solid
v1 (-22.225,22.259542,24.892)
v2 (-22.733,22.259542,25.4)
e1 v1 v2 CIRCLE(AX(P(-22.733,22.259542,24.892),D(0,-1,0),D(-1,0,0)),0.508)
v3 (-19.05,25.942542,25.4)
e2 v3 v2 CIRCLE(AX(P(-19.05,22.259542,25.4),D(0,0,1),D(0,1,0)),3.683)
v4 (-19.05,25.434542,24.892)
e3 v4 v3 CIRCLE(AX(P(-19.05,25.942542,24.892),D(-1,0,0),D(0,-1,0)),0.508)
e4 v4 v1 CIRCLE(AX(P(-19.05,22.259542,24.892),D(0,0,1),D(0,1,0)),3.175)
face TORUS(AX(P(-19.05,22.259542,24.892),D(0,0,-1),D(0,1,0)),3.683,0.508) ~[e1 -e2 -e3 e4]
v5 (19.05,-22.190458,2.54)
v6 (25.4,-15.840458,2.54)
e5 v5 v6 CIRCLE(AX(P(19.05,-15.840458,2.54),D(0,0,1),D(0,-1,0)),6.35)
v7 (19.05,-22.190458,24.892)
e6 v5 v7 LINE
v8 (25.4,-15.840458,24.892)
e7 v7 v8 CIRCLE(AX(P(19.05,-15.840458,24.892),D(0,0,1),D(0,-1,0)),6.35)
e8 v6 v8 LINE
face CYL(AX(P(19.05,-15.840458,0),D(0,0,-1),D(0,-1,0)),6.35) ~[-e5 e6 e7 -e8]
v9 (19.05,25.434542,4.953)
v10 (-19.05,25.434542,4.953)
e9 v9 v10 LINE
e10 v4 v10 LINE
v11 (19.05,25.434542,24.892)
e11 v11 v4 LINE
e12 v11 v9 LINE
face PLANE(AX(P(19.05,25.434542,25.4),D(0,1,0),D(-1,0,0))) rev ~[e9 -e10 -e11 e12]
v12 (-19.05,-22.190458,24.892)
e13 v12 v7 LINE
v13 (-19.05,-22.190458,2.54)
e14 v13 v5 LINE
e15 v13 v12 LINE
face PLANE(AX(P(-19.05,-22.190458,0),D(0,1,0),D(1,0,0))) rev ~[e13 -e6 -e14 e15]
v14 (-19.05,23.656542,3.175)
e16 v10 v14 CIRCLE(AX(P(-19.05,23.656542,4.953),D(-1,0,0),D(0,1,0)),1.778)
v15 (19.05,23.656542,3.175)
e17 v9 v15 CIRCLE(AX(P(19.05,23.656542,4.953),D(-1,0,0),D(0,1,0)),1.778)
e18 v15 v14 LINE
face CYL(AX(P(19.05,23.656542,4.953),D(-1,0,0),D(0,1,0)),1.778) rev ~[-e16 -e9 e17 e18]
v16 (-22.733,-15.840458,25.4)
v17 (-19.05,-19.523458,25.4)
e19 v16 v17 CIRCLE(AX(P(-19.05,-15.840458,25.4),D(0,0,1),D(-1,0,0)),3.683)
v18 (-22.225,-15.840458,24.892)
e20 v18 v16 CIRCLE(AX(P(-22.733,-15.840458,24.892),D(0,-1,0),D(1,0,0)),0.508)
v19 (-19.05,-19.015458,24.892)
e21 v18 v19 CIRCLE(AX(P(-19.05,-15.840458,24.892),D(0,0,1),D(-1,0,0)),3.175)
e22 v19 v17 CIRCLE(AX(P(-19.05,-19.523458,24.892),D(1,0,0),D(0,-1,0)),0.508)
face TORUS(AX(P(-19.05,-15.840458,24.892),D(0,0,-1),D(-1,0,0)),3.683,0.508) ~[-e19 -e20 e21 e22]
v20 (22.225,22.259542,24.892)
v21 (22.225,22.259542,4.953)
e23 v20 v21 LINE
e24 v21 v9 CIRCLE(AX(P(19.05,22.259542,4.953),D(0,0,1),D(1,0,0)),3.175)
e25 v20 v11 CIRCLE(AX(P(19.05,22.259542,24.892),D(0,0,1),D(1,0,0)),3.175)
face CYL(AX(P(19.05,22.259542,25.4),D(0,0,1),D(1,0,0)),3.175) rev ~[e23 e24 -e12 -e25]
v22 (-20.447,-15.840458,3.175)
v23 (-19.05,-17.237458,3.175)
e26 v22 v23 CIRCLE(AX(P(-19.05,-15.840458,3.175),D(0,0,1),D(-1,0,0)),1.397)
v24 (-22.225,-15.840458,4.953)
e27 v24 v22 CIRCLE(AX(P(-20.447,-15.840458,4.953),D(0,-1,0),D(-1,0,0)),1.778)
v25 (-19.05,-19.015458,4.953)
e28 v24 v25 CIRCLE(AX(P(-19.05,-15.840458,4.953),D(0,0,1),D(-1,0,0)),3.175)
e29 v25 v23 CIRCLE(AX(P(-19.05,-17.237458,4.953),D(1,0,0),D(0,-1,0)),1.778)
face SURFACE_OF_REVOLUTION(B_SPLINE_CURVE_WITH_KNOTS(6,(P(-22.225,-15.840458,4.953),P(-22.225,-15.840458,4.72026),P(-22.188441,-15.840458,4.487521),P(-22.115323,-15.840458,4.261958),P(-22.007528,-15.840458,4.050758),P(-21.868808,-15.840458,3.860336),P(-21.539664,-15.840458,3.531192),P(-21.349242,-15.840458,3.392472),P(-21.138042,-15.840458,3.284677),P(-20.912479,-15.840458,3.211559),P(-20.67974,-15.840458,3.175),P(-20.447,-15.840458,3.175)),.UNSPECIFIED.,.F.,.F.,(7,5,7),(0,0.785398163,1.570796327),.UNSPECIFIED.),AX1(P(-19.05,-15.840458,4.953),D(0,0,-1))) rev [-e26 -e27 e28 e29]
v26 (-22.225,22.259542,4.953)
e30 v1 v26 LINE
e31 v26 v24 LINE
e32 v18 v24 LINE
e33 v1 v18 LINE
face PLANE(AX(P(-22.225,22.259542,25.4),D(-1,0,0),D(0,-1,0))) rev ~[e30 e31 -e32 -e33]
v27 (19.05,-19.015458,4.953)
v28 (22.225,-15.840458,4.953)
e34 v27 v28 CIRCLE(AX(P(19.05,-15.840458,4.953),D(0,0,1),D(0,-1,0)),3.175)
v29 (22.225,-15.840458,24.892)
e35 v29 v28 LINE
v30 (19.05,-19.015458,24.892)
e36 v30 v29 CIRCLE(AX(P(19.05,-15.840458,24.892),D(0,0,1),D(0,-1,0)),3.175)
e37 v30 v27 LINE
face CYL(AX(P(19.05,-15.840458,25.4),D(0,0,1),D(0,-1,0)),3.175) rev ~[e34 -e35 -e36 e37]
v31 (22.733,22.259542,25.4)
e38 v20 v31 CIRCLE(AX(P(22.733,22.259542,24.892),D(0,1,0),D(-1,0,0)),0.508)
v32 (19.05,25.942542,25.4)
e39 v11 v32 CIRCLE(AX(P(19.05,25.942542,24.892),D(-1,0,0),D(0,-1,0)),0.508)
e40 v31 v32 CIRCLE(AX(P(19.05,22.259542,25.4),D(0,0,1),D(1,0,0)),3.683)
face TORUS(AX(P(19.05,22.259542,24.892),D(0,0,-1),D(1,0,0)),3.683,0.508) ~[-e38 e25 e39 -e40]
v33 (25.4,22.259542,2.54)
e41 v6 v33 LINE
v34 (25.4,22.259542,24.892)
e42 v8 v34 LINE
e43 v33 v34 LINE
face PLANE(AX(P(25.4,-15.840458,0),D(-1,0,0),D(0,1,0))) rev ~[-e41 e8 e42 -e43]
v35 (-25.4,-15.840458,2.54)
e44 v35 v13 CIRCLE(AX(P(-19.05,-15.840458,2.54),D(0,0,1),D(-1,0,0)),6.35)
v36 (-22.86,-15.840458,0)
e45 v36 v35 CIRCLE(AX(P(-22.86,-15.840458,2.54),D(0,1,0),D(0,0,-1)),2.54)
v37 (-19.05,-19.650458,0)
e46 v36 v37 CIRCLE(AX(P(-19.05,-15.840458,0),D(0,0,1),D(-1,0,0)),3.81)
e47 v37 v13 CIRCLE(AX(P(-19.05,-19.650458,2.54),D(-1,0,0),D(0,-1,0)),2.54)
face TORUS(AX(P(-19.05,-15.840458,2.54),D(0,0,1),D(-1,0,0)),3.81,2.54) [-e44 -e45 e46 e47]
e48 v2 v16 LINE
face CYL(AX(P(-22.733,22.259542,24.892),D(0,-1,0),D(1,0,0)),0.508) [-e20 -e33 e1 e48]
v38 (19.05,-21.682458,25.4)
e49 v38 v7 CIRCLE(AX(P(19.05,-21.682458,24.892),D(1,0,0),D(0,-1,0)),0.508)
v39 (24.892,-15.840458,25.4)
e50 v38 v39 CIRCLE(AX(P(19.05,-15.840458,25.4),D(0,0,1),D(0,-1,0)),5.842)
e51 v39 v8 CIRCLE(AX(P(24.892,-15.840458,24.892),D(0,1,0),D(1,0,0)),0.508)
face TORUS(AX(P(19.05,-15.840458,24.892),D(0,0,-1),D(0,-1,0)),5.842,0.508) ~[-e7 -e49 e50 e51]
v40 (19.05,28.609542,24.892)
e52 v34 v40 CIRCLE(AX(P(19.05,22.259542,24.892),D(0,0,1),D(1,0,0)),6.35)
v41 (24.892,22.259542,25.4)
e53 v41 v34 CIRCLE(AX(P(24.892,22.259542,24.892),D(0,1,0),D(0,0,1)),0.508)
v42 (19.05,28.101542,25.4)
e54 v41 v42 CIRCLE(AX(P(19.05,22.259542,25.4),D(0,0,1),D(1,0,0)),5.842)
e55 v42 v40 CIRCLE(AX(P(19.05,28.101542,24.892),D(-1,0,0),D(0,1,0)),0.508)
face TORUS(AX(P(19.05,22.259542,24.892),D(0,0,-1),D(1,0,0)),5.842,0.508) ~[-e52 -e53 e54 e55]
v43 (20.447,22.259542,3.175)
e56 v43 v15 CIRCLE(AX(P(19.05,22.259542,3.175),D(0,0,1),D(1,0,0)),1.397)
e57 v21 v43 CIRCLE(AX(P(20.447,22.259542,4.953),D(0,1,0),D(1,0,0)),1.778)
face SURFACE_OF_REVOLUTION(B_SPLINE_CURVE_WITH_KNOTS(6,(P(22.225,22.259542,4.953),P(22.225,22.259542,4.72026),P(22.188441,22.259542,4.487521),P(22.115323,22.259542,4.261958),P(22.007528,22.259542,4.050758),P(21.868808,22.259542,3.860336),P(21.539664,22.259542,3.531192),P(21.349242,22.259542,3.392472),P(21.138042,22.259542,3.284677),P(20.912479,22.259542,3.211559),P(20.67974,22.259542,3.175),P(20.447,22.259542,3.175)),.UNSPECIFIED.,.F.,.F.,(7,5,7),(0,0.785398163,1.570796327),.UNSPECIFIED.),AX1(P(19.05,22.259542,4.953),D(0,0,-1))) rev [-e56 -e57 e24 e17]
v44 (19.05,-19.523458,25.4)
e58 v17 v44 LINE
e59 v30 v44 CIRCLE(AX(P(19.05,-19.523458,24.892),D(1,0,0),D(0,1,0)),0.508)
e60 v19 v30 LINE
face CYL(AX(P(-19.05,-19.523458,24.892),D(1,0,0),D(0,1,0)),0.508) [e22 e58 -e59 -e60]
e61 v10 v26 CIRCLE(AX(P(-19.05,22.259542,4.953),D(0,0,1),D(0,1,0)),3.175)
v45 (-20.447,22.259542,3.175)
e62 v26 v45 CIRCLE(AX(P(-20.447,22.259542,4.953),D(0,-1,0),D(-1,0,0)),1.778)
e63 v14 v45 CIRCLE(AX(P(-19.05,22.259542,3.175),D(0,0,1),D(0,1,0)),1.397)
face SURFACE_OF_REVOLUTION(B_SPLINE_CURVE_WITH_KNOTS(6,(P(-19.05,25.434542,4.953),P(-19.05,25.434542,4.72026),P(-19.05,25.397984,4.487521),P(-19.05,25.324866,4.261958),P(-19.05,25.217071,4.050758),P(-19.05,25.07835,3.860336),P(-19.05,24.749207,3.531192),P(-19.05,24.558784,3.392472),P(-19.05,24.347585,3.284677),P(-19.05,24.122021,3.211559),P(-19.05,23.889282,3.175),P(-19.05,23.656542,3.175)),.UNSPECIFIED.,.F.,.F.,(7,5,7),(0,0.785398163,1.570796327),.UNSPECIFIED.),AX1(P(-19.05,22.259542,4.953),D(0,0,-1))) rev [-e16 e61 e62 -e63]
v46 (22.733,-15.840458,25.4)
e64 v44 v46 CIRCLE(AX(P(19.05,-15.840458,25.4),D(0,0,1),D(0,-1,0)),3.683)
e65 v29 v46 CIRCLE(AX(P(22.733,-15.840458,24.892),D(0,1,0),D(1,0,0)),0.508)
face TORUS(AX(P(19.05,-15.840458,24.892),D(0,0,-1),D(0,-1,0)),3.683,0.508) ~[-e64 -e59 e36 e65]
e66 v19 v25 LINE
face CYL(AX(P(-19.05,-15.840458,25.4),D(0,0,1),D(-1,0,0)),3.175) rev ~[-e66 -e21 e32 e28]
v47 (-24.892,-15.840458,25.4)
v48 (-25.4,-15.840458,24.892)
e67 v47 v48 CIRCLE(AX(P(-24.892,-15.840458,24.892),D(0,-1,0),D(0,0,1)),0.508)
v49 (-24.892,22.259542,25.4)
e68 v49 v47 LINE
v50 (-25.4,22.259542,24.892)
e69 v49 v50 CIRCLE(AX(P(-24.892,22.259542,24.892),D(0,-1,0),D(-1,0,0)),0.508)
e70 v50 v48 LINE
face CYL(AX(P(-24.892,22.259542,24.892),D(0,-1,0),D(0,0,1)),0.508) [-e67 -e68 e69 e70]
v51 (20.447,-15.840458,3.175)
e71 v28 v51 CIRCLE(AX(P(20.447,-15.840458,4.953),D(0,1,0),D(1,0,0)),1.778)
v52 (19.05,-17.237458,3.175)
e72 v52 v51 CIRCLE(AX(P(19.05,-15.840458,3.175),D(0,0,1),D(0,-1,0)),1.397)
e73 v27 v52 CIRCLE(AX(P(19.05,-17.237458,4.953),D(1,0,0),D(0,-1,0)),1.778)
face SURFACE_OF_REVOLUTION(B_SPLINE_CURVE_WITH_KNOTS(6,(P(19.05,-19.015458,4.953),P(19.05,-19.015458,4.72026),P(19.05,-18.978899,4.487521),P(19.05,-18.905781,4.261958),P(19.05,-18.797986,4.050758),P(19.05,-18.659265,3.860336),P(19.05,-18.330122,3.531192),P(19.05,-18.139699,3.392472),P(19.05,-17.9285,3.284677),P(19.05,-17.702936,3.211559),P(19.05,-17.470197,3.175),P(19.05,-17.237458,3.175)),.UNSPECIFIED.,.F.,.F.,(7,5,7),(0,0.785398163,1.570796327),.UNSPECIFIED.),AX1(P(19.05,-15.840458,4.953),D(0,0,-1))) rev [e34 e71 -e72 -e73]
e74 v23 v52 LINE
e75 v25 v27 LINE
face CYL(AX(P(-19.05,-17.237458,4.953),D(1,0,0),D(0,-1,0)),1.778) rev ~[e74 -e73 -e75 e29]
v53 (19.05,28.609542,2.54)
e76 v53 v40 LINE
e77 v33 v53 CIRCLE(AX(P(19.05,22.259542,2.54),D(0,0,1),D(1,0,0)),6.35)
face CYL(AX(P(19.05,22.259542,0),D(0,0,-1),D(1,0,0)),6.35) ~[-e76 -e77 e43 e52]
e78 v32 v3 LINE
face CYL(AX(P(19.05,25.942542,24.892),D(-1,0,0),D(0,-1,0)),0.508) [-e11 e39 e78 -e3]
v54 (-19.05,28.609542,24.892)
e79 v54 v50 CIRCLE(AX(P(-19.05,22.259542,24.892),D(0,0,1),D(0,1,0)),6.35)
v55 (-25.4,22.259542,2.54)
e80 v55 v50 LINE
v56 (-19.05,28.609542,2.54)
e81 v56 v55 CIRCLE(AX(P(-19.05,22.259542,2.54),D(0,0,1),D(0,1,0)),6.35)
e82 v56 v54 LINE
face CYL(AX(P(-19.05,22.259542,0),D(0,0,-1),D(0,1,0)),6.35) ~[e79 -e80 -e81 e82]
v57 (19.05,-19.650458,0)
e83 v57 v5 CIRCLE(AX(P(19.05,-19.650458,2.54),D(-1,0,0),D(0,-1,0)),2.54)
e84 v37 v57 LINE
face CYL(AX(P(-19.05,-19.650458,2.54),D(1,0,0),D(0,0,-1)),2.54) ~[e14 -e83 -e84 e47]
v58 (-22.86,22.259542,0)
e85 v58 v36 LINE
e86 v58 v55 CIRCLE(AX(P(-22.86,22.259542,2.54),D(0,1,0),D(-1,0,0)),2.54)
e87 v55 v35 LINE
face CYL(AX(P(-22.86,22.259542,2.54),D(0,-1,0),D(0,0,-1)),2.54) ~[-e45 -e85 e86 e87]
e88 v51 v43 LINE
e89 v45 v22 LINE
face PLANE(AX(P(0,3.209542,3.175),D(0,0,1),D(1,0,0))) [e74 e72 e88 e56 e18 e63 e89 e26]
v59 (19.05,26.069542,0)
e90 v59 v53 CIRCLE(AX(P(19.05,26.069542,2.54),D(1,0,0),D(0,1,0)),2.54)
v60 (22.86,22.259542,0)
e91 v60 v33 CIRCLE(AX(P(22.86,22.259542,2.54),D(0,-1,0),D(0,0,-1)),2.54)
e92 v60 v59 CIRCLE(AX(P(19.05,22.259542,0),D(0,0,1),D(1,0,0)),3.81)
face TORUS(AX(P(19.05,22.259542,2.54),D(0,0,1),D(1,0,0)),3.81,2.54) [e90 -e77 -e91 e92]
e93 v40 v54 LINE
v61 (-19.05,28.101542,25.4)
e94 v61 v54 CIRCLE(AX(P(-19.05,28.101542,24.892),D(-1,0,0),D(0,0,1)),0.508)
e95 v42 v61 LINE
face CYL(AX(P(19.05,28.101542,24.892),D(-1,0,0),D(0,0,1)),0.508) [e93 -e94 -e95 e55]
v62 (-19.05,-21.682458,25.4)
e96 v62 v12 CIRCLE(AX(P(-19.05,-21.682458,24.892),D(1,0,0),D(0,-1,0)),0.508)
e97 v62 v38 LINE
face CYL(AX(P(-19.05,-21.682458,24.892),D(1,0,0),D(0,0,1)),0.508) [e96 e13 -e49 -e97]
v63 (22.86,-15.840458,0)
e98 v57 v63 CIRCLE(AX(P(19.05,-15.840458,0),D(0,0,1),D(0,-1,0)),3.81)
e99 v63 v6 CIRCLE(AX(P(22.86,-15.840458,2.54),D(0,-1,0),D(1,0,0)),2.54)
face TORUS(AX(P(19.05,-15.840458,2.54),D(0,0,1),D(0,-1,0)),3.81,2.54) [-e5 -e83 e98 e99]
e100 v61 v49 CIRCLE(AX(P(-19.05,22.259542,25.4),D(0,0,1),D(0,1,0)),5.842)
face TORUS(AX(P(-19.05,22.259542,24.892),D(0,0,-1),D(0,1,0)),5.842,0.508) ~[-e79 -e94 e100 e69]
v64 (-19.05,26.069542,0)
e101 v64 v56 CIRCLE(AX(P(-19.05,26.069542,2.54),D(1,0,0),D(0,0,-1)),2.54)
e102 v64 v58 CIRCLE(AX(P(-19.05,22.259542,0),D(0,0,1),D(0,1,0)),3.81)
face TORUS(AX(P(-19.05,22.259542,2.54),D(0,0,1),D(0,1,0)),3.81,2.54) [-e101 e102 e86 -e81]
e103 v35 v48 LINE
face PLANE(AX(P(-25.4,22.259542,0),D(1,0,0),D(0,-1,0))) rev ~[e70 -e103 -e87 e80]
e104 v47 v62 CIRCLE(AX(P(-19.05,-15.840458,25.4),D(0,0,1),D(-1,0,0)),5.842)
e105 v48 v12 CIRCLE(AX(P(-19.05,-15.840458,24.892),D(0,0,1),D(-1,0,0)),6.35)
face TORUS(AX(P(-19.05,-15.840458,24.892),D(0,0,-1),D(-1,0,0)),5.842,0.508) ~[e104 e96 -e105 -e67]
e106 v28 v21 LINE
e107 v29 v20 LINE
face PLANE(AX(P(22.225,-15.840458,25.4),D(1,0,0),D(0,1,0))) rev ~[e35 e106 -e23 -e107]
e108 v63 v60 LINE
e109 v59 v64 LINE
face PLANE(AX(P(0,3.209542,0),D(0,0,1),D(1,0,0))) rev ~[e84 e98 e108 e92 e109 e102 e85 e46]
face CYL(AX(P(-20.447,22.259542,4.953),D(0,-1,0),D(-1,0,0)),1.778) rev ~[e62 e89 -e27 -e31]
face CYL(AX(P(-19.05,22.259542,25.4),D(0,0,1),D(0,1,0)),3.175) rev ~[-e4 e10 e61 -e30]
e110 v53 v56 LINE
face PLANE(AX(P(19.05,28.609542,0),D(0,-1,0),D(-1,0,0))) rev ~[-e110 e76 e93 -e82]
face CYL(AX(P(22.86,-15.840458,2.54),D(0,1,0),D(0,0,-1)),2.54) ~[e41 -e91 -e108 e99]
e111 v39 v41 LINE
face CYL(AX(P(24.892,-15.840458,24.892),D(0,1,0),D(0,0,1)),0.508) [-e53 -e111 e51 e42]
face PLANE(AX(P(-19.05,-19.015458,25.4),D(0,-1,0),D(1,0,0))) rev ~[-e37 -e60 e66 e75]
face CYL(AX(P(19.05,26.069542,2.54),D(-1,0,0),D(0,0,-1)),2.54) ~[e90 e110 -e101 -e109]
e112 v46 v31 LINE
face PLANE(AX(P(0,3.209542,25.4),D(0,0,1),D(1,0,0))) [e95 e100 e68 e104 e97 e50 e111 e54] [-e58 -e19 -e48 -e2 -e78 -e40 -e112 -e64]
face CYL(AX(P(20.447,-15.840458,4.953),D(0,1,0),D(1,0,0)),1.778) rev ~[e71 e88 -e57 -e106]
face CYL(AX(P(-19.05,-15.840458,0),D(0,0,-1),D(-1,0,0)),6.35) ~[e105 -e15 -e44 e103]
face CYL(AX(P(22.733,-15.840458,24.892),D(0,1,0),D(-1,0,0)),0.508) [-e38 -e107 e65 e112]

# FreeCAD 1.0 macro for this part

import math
import FreeCAD as App
import Part
import Sketcher
Q = App.Units.Quantity


def edges_at(feature, points):
    """Names of the edges that pass closest to the given points."""
    edges = feature.Shape.Edges
    near = lambda p: min(range(len(edges)), key=lambda i: edges[i].distToShape(Part.Vertex(*p))[0])
    return sorted({f"Edge{near(p) + 1}" for p in points})

doc = App.newDocument("Part")
body = doc.addObject("PartDesign::Body", "Body")

# Sketch on XY plane
sketch1 = body.newObject("Sketcher::SketchObject", "Sketch")
sketch1.AttachmentSupport = (doc.getObject("XY_Plane"), [""])
sketch1.MapMode = "FlatFace"
sketch1.addGeometry(Part.ArcOfCircle(Part.Circle(App.Vector(19, 22, 0), App.Vector(0, 0, 1), 6), math.radians(0), math.radians(90)), False)
sketch1.addGeometry(Part.LineSegment(App.Vector(19, 29, 0), App.Vector(-19, 29, 0)), False)
sketch1.addGeometry(Part.ArcOfCircle(Part.Circle(App.Vector(-19, 22, 0), App.Vector(0, 0, 1), 6), math.radians(90), math.radians(180)), False)
sketch1.addGeometry(Part.LineSegment(App.Vector(-25, 22, 0), App.Vector(-25, -16, 0)), False)
sketch1.addGeometry(Part.ArcOfCircle(Part.Circle(App.Vector(-19, -16, 0), App.Vector(0, 0, 1), 6), math.radians(180), math.radians(270)), False)
sketch1.addGeometry(Part.LineSegment(App.Vector(-19, -22, 0), App.Vector(19, -22, 0)), False)
sketch1.addGeometry(Part.ArcOfCircle(Part.Circle(App.Vector(19, -16, 0), App.Vector(0, 0, 1), 6), math.radians(-90), math.radians(0)), False)
sketch1.addGeometry(Part.LineSegment(App.Vector(25, -16, 0), App.Vector(25, 22, 0)), False)
sketch1.addConstraint(Sketcher.Constraint("Tangent", 0, 2, 1, 1))
sketch1.addConstraint(Sketcher.Constraint("Tangent", 1, 2, 2, 1))
sketch1.addConstraint(Sketcher.Constraint("Tangent", 2, 2, 3, 1))
sketch1.addConstraint(Sketcher.Constraint("Tangent", 3, 2, 4, 1))
sketch1.addConstraint(Sketcher.Constraint("Tangent", 4, 2, 5, 1))
sketch1.addConstraint(Sketcher.Constraint("Tangent", 5, 2, 6, 1))
sketch1.addConstraint(Sketcher.Constraint("Tangent", 6, 2, 7, 1))
sketch1.addConstraint(Sketcher.Constraint("Tangent", 7, 2, 0, 1))
sketch1.addConstraint(Sketcher.Constraint("Horizontal", 1))
sketch1.addConstraint(Sketcher.Constraint("Vertical", 3))
sketch1.addConstraint(Sketcher.Constraint("Horizontal", 5))
sketch1.addConstraint(Sketcher.Constraint("Vertical", 7))
sketch1.addConstraint(Sketcher.Constraint("Equal", 0, 2))
sketch1.addConstraint(Sketcher.Constraint("Equal", 2, 4))
sketch1.addConstraint(Sketcher.Constraint("Equal", 4, 6))
sketch1.addConstraint(Sketcher.Constraint("Equal", 5, 3))
sketch1.addConstraint(Sketcher.Constraint("Radius", 0, Q("0.25 in")))
sketch1.addConstraint(Sketcher.Constraint("DistanceX", 1, 2, 1, 1, Q("1.5 in")))
sketch1.addConstraint(Sketcher.Constraint("DistanceX", 2, 2, -1, 1, Q("1 in")))
sketch1.addConstraint(Sketcher.Constraint("DistanceY", -1, 1, 0, 3, Q("22.259542 mm")))
pad1 = body.newObject("PartDesign::Pad", "Pad")
pad1.Profile = sketch1
pad1.Length = Q("1 in")

# Sketch on XY plane
sketch2 = body.newObject("Sketcher::SketchObject", "Sketch001")
sketch2.AttachmentSupport = (doc.getObject("XY_Plane"), [""])
sketch2.MapMode = "FlatFace"
sketch2.AttachmentOffset = App.Placement(App.Vector(0, 0, 1 * 25.4), App.Rotation())
sketch2.addGeometry(Part.LineSegment(App.Vector(19.1, 25.4, 0), App.Vector(-19.1, 25.4, 0)), False)
sketch2.addGeometry(Part.ArcOfCircle(Part.Circle(App.Vector(-19.1, 22.3, 0), App.Vector(0, 0, 1), 3.2), math.radians(90), math.radians(180)), False)
sketch2.addGeometry(Part.LineSegment(App.Vector(-22.2, 22.3, 0), App.Vector(-22.2, -15.8, 0)), False)
sketch2.addGeometry(Part.ArcOfCircle(Part.Circle(App.Vector(-19.1, -15.8, 0), App.Vector(0, 0, 1), 3.2), math.radians(180), math.radians(270)), False)
sketch2.addGeometry(Part.LineSegment(App.Vector(-19.1, -19, 0), App.Vector(19.1, -19, 0)), False)
sketch2.addGeometry(Part.ArcOfCircle(Part.Circle(App.Vector(19.1, -15.8, 0), App.Vector(0, 0, 1), 3.2), math.radians(-90), math.radians(0)), False)
sketch2.addGeometry(Part.LineSegment(App.Vector(22.2, -15.8, 0), App.Vector(22.2, 22.3, 0)), False)
sketch2.addGeometry(Part.ArcOfCircle(Part.Circle(App.Vector(19.1, 22.3, 0), App.Vector(0, 0, 1), 3.2), math.radians(0), math.radians(90)), False)
sketch2.addConstraint(Sketcher.Constraint("Tangent", 0, 2, 1, 1))
sketch2.addConstraint(Sketcher.Constraint("Tangent", 1, 2, 2, 1))
sketch2.addConstraint(Sketcher.Constraint("Tangent", 2, 2, 3, 1))
sketch2.addConstraint(Sketcher.Constraint("Tangent", 3, 2, 4, 1))
sketch2.addConstraint(Sketcher.Constraint("Tangent", 4, 2, 5, 1))
sketch2.addConstraint(Sketcher.Constraint("Tangent", 5, 2, 6, 1))
sketch2.addConstraint(Sketcher.Constraint("Tangent", 6, 2, 7, 1))
sketch2.addConstraint(Sketcher.Constraint("Tangent", 7, 2, 0, 1))
sketch2.addConstraint(Sketcher.Constraint("Horizontal", 0))
sketch2.addConstraint(Sketcher.Constraint("Vertical", 2))
sketch2.addConstraint(Sketcher.Constraint("Horizontal", 4))
sketch2.addConstraint(Sketcher.Constraint("Vertical", 6))
sketch2.addConstraint(Sketcher.Constraint("Equal", 1, 3))
sketch2.addConstraint(Sketcher.Constraint("Equal", 3, 5))
sketch2.addConstraint(Sketcher.Constraint("Equal", 5, 7))
sketch2.addConstraint(Sketcher.Constraint("Equal", 4, 2))
sketch2.addConstraint(Sketcher.Constraint("DistanceX", 0, 2, 0, 1, Q("1.5 in")))
sketch2.addConstraint(Sketcher.Constraint("Radius", 1, Q("0.125 in")))
sketch2.addConstraint(Sketcher.Constraint("DistanceX", 1, 3, -1, 1, Q("0.75 in")))
sketch2.addConstraint(Sketcher.Constraint("DistanceY", -1, 1, 1, 3, Q("22.259542 mm")))
pocket1 = body.newObject("PartDesign::Pocket", "Pocket")
pocket1.Profile = sketch2
pocket1.Length = Q("0.875 in")
doc.recompute()

fillet = body.newObject("PartDesign::Fillet", "Fillet")
fillet.Base = (pocket1, edges_at(pocket1, [
    (23.54, -20.331, 0),
    (25.4, 3.21, 0),
    (23.54, 26.75, 0),
    (0, 28.61, 0),
    (-23.54, 26.75, 0),
    (-25.4, 3.21, 0),
    (-23.54, -20.331, 0),
    (0, -22.19, 0),
]))
fillet.Radius = Q("0.1 in")
doc.recompute()

fillet2 = body.newObject("PartDesign::Fillet", "Fillet001")
fillet2.Base = (fillet, edges_at(fillet, [
    (0, 25.435, 3.175),
    (-21.295, 24.505, 3.175),
    (-22.225, 3.21, 3.175),
    (-21.295, -18.086, 3.175),
    (0, -19.015, 3.175),
    (21.295, -18.086, 3.175),
    (22.225, 3.21, 3.175),
    (21.295, 24.505, 3.175),
]))
fillet2.Radius = Q("0.07 in")
doc.recompute()

fillet3 = body.newObject("PartDesign::Fillet", "Fillet002")
fillet3.Base = (fillet2, edges_at(fillet2, [
    (23.54, -20.331, 25.4),
    (0, -22.19, 25.4),
    (25.4, 3.21, 25.4),
    (-23.54, -20.331, 25.4),
    (23.54, 26.75, 25.4),
    (-25.4, 3.21, 25.4),
    (0, 28.61, 25.4),
    (-23.54, 26.75, 25.4),
    (0, 25.435, 25.4),
    (-21.295, 24.505, 25.4),
    (-22.225, 3.21, 25.4),
    (-21.295, -18.086, 25.4),
    (0, -19.015, 25.4),
    (21.295, -18.086, 25.4),
    (22.225, 3.21, 25.4),
    (21.295, 24.505, 25.4),
]))
fillet3.Radius = Q("0.02 in")

doc.recompute()
